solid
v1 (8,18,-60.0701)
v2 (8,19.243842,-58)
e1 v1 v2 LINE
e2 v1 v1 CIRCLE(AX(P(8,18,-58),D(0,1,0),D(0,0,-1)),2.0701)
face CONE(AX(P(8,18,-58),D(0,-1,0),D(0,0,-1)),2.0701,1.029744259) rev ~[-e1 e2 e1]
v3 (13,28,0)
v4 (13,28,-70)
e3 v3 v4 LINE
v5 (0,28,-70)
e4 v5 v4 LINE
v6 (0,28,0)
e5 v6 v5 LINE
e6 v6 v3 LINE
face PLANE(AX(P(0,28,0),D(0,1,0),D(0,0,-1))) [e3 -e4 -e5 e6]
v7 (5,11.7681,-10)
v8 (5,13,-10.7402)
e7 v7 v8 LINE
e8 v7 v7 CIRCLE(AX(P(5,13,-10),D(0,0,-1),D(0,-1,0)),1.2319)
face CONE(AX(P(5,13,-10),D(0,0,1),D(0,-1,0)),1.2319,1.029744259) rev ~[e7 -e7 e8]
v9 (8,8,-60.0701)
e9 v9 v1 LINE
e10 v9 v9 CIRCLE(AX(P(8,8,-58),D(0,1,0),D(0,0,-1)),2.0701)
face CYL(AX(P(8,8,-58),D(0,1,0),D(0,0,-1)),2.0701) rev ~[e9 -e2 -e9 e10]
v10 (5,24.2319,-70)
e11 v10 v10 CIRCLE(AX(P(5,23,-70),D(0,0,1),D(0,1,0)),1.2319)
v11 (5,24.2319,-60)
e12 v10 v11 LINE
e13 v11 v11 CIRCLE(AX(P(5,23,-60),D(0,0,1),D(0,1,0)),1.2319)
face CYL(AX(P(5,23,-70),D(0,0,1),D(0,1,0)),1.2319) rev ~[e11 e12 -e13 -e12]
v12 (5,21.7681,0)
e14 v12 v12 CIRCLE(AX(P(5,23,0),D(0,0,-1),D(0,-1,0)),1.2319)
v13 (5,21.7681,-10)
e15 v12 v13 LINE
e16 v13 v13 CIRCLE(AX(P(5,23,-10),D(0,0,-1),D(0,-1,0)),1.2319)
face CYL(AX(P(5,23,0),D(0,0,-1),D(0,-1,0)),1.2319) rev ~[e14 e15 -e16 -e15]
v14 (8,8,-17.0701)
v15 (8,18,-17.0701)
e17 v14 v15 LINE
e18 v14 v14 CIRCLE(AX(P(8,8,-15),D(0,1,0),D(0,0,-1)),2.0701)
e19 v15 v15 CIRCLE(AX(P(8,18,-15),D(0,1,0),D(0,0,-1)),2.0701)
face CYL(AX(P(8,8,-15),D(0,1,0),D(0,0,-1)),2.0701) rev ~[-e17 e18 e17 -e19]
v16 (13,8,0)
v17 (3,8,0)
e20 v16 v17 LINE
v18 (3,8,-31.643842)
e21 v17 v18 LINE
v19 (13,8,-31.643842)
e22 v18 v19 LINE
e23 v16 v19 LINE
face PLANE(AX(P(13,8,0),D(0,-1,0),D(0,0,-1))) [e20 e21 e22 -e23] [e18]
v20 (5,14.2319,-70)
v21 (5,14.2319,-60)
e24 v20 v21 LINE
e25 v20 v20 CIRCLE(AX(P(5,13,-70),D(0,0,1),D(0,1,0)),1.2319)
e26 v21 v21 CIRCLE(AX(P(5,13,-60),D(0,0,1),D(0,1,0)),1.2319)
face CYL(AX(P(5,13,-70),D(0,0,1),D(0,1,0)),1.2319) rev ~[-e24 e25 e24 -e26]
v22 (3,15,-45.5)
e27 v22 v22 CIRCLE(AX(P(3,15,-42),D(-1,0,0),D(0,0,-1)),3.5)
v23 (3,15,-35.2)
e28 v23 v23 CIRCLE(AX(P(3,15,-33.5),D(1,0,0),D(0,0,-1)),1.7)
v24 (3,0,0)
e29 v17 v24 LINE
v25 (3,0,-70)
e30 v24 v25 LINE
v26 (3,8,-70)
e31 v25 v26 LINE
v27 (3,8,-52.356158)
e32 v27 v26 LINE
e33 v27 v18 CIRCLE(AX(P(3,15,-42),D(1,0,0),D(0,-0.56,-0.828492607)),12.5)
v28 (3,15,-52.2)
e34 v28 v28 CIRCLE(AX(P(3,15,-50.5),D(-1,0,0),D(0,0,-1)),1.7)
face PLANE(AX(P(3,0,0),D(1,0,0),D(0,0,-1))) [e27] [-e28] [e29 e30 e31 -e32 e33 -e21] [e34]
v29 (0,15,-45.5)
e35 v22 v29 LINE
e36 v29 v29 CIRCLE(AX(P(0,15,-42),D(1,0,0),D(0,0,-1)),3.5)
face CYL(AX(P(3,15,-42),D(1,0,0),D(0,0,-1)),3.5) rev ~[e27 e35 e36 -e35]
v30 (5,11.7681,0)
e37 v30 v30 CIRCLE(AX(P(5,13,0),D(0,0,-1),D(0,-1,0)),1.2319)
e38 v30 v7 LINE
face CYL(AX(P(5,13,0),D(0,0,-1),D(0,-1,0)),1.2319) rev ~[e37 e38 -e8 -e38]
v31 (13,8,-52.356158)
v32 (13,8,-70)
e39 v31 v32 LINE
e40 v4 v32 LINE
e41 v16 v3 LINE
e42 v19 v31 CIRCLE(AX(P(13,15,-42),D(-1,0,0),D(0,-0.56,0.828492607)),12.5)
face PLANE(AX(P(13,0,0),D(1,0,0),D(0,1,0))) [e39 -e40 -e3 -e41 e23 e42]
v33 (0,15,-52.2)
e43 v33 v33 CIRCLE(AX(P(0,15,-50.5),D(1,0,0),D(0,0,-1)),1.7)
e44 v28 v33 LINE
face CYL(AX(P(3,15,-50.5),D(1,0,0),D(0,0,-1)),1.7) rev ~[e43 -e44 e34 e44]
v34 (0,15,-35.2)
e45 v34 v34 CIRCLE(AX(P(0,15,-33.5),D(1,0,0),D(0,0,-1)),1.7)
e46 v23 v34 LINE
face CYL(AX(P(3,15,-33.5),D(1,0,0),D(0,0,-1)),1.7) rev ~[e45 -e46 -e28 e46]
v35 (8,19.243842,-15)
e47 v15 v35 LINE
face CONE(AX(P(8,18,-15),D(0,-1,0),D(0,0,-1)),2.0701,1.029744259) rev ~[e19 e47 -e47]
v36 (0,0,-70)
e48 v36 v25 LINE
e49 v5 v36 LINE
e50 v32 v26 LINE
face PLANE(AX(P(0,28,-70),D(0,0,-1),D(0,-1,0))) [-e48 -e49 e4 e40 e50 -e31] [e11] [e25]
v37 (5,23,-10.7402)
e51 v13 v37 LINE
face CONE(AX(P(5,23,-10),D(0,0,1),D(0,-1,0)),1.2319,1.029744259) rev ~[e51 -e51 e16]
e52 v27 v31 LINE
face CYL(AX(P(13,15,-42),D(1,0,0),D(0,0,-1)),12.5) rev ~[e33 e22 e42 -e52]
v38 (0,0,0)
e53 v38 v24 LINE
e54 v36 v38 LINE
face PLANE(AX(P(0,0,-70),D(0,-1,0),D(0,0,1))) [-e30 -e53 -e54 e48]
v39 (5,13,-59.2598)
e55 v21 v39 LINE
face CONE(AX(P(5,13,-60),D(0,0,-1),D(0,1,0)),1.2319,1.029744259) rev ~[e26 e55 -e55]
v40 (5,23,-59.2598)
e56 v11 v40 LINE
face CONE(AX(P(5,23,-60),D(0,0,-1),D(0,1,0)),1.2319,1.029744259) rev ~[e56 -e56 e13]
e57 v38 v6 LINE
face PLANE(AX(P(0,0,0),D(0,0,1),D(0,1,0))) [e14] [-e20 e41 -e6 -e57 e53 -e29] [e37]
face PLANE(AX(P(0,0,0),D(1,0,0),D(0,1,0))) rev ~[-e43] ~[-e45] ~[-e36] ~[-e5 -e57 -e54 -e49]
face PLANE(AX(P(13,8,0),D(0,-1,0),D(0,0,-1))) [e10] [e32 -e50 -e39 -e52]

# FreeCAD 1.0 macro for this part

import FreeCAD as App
import Part
import Sketcher

V = App.Vector
Q = App.Units.Quantity


def add_polygon(sketch, points):
    """Adds a closed chain of lines whose ends are joined by coincident constraints."""
    first, n = sketch.GeometryCount, len(points)
    for a, b in zip(points, points[1:] + points[:1]):
        sketch.addGeometry(Part.LineSegment(App.Vector(*a, 0), App.Vector(*b, 0)), False)
    for i in range(n):
        sketch.addConstraint(Sketcher.Constraint("Coincident", first + i, 2, first + (i + 1) % n, 1))

doc = App.newDocument("Part")
body = doc.addObject("PartDesign::Body", "Body")

# Sketch on YZ plane
sketch1 = doc.addObject("Sketcher::SketchObject", "Sketch")
body.addObject(sketch1)
sketch1.AttachmentSupport = (doc.YZ_Plane, [""])
sketch1.MapMode = "FlatFace"
add_polygon(sketch1, [(28, 0), (0, 0), (0, -70), (28, -70)])  # lines 0-3
sketch1.addConstraint([
    Sketcher.Constraint("Horizontal", 0),
    Sketcher.Constraint("Vertical", 1),
    Sketcher.Constraint("Horizontal", 2),
    Sketcher.Constraint("Vertical", 3),
    Sketcher.Constraint("Coincident", 0, 2, -1, 1),
    Sketcher.Constraint("DistanceY", 1, 2, 1, 1, Q("70 mm")),
    Sketcher.Constraint("DistanceX", 0, 2, 0, 1, Q("28 mm")),
])
pad1 = doc.addObject("PartDesign::Pad", "Pad")
body.addObject(pad1)
pad1.Profile = sketch1
pad1.Length = 13

# Sketch on YZ plane
sketch2 = doc.addObject("Sketcher::SketchObject", "Sketch001")
body.addObject(sketch2)
sketch2.AttachmentSupport = (doc.YZ_Plane, [""])
sketch2.MapMode = "FlatFace"
sketch2.AttachmentOffset = App.Placement(V(0, 0, 13), App.Rotation())
add_polygon(sketch2, [(8, -70), (8, 0), (0, 0), (0, -70)])  # lines 0-3
sketch2.addConstraint([
    Sketcher.Constraint("Vertical", 0),
    Sketcher.Constraint("Horizontal", 1),
    Sketcher.Constraint("Vertical", 2),
    Sketcher.Constraint("Horizontal", 3),
    Sketcher.Constraint("Coincident", 1, 2, -1, 1),
    Sketcher.Constraint("DistanceX", 1, 2, 1, 1, Q("8 mm")),
    Sketcher.Constraint("DistanceY", 0, 1, 0, 2, Q("70 mm")),
])
pocket1 = doc.addObject("PartDesign::Pocket", "Pocket")
body.addObject(pocket1)
pocket1.Profile = sketch2
pocket1.Length = 10

# Sketch on YZ plane
sketch3 = doc.addObject("Sketcher::SketchObject", "Sketch002")
body.addObject(sketch3)
sketch3.AttachmentSupport = (doc.YZ_Plane, [""])
sketch3.MapMode = "FlatFace"
sketch3.AttachmentOffset = App.Placement(V(0, 0, 13), App.Rotation())
sketch3.addGeometry(Part.Circle(V(15, -42, 0), V(0, 0, 1), 12.5), False)
sketch3.addConstraint([
    Sketcher.Constraint("Diameter", 0, Q("25 mm")),
    Sketcher.Constraint("DistanceX", -1, 1, 0, 3, Q("15 mm")),
    Sketcher.Constraint("DistanceY", 0, 3, -1, 1, Q("42 mm")),
])
pocket2 = doc.addObject("PartDesign::Pocket", "Pocket001")
body.addObject(pocket2)
pocket2.Profile = sketch3
pocket2.Length = 10

# Sketch on YZ plane
sketch4 = doc.addObject("Sketcher::SketchObject", "Sketch003")
body.addObject(sketch4)
sketch4.AttachmentSupport = (doc.YZ_Plane, [""])
sketch4.MapMode = "FlatFace"
sketch4.AttachmentOffset = App.Placement(V(0, 0, 3), App.Rotation())
sketch4.addGeometry([
    Part.Circle(V(15, -42, 0), V(0, 0, 1), 3.5),
    Part.Circle(V(15, -33.5, 0), V(0, 0, 1), 1.7),
    Part.Circle(V(15, -50.5, 0), V(0, 0, 1), 1.7),
], False)
sketch4.addConstraint([
    Sketcher.Constraint("Equal", 1, 2),
    Sketcher.Constraint("Vertical", 0, 3, 1, 3),
    Sketcher.Constraint("Vertical", 1, 3, 2, 3),
    Sketcher.Constraint("Diameter", 0, Q("7 mm")),
    Sketcher.Constraint("Diameter", 1, Q("3.4 mm")),
    Sketcher.Constraint("DistanceY", 0, 3, 1, 3, Q("8.5 mm")),
    Sketcher.Constraint("DistanceY", 2, 3, 0, 3, Q("8.5 mm")),
    Sketcher.Constraint("DistanceX", -1, 1, 0, 3, Q("15 mm")),
    Sketcher.Constraint("DistanceY", 0, 3, -1, 1, Q("42 mm")),
])
pocket3 = doc.addObject("PartDesign::Pocket", "Pocket002")
body.addObject(pocket3)
pocket3.Profile = sketch4
pocket3.Length = 3

# Sketch on XY plane
sketch5 = doc.addObject("Sketcher::SketchObject", "Sketch004")
body.addObject(sketch5)
sketch5.AttachmentSupport = (doc.XY_Plane, [""])
sketch5.MapMode = "FlatFace"
sketch5.AttachmentOffset = App.Placement(V(0, 0, -70), App.Rotation())
sketch5.addGeometry([
    Part.Circle(V(5, 13, 0), V(0, 0, 1), 1.2319),
    Part.Circle(V(5, 23, 0), V(0, 0, 1), 1.2319),
], False)
sketch5.addConstraint([
    Sketcher.Constraint("Equal", 0, 1),
    Sketcher.Constraint("Vertical", 0, 3, 1, 3),
    Sketcher.Constraint("DistanceX", -1, 1, 0, 3, Q("5 mm")),
    Sketcher.Constraint("DistanceY", -1, 1, 0, 3, Q("13 mm")),
    Sketcher.Constraint("DistanceY", -1, 1, 1, 3, Q("23 mm")),
    Sketcher.Constraint("Diameter", 0, Q("2.4638 mm")),
])
doc.recompute()
hole = doc.addObject("PartDesign::Hole", "Hole")
body.addObject(hole)
hole.Profile = sketch5
hole.ThreadType = "None"
hole.Diameter = 2.4638
hole.DepthType = "Dimension"
hole.Depth = 10
hole.DrillPoint = "Angled"
hole.DrillPointAngle = 118
hole.Reversed = True

# Sketch on XY plane
sketch6 = doc.addObject("Sketcher::SketchObject", "Sketch005")
body.addObject(sketch6)
sketch6.AttachmentSupport = (doc.XY_Plane, [""])
sketch6.MapMode = "FlatFace"
sketch6.addGeometry([
    Part.Circle(V(5, 23, 0), V(0, 0, 1), 1.2319),
    Part.Circle(V(5, 13, 0), V(0, 0, 1), 1.2319),
], False)
sketch6.addConstraint([
    Sketcher.Constraint("Equal", 0, 1),
    Sketcher.Constraint("Vertical", 0, 3, 1, 3),
    Sketcher.Constraint("DistanceX", -1, 1, 0, 3, Q("5 mm")),
    Sketcher.Constraint("DistanceY", -1, 1, 0, 3, Q("23 mm")),
    Sketcher.Constraint("DistanceY", -1, 1, 1, 3, Q("13 mm")),
    Sketcher.Constraint("Diameter", 0, Q("2.4638 mm")),
])
doc.recompute()
hole2 = doc.addObject("PartDesign::Hole", "Hole001")
body.addObject(hole2)
hole2.Profile = sketch6
hole2.ThreadType = "None"
hole2.Diameter = 2.4638
hole2.DepthType = "Dimension"
hole2.Depth = 10
hole2.DrillPoint = "Angled"
hole2.DrillPointAngle = 118

# Sketch on XZ plane
sketch7 = doc.addObject("Sketcher::SketchObject", "Sketch006")
body.addObject(sketch7)
sketch7.AttachmentSupport = (doc.XZ_Plane, [""])
sketch7.MapMode = "FlatFace"
sketch7.AttachmentOffset = App.Placement(V(0, 0, -8), App.Rotation())
sketch7.addGeometry([
    Part.Circle(V(8, -15, 0), V(0, 0, 1), 2.0701),
    Part.Circle(V(8, -58, 0), V(0, 0, 1), 2.0701),
], False)
sketch7.addConstraint([
    Sketcher.Constraint("Equal", 0, 1),
    Sketcher.Constraint("Vertical", 0, 3, 1, 3),
    Sketcher.Constraint("DistanceX", -1, 1, 0, 3, Q("8 mm")),
    Sketcher.Constraint("DistanceY", 0, 3, -1, 1, Q("15 mm")),
    Sketcher.Constraint("DistanceY", 1, 3, -1, 1, Q("58 mm")),
    Sketcher.Constraint("Diameter", 0, Q("4.1402 mm")),
])
doc.recompute()
hole3 = doc.addObject("PartDesign::Hole", "Hole002")
body.addObject(hole3)
hole3.Profile = sketch7
hole3.ThreadType = "None"
hole3.Diameter = 4.1402
hole3.DepthType = "Dimension"
hole3.Depth = 10
hole3.DrillPoint = "Angled"
hole3.DrillPointAngle = 118

doc.recompute()
